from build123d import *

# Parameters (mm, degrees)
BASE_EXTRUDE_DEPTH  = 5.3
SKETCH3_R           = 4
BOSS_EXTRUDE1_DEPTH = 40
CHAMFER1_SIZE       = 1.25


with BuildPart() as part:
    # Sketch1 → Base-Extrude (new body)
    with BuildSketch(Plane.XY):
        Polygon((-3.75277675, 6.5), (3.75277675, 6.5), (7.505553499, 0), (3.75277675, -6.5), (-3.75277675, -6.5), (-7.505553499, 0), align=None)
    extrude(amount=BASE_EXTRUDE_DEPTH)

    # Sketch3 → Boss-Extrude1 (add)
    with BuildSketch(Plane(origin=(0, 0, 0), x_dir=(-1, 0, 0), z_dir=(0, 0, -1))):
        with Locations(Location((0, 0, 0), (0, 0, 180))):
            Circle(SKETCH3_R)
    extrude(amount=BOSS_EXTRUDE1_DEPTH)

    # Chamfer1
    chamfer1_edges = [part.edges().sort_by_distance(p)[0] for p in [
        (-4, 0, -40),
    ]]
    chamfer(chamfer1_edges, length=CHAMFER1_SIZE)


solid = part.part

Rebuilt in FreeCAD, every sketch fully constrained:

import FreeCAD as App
import Part
import Sketcher

V = App.Vector
Q = App.Units.Quantity


def edges_at(feature, points):
    """Names of the edges that pass closest to the given points."""
    edges = feature.Shape.Edges
    near = lambda p: min(range(len(edges)), key=lambda i: edges[i].distToShape(Part.Vertex(*p))[0])
    return sorted({f"Edge{near(p) + 1}" for p in points})


def add_polygon(sketch, points):
    """Adds a closed chain of lines whose ends are joined by coincident constraints."""
    first, n = sketch.GeometryCount, len(points)
    for a, b in zip(points, points[1:] + points[:1]):
        sketch.addGeometry(Part.LineSegment(App.Vector(*a, 0), App.Vector(*b, 0)), False)
    for i in range(n):
        sketch.addConstraint(Sketcher.Constraint("Coincident", first + i, 2, first + (i + 1) % n, 1))

doc = App.newDocument("Part")
body = doc.addObject("PartDesign::Body", "Body")

# Sketch on XY plane
sketch1 = doc.addObject("Sketcher::SketchObject", "Sketch")
body.addObject(sketch1)
sketch1.AttachmentSupport = (doc.XY_Plane, [""])
sketch1.MapMode = "FlatFace"
add_polygon(sketch1, [(3.752777, 6.5), (-3.752777, 6.5), (-7.505553, 0), (-3.752777, -6.5), (3.752777, -6.5), (7.505553, 0)])  # lines 0-5
sketch1.addConstraint([
    Sketcher.Constraint("Horizontal", 0),
    Sketcher.Constraint("Horizontal", 3),
    Sketcher.Constraint("Symmetric", 0, 2, 3, 2, -1, 1),
    Sketcher.Constraint("Symmetric", 1, 2, 4, 2, -1, 1),
    Sketcher.Constraint("PointOnObject", 1, 2, -1),
    Sketcher.Constraint("Parallel", 2, 5),
    Sketcher.Constraint("Vertical", 0, 2, 2, 2),
    Sketcher.Constraint("Angle", 1, Q("-120 deg")),
    Sketcher.Constraint("DistanceY", 2, 2, 0, 2, 13.0),
    Sketcher.Constraint("DistanceX", 0, 2, 0, 1, 7.505554),
])
pad1 = doc.addObject("PartDesign::Pad", "Pad")
body.addObject(pad1)
pad1.Profile = sketch1
pad1.Length = 5.3

# Sketch on XY plane
sketch2 = doc.addObject("Sketcher::SketchObject", "Sketch001")
body.addObject(sketch2)
sketch2.AttachmentSupport = (doc.XY_Plane, [""])
sketch2.MapMode = "FlatFace"
sketch2.addGeometry(Part.Circle(V(0, 0, 0), V(0, 0, 1), 4), False)
sketch2.addConstraint([
    Sketcher.Constraint("Coincident", 0, 3, -1, 1),
    Sketcher.Constraint("Diameter", 0, 8.0),
])
pad2 = doc.addObject("PartDesign::Pad", "Pad001")
body.addObject(pad2)
pad2.Profile = sketch2
pad2.Length = 40
pad2.Reversed = True
doc.recompute()

chamfer = doc.addObject("PartDesign::Chamfer", "Chamfer")
body.addObject(chamfer)
chamfer.Base = (pad2, edges_at(pad2, [(-4, 0, -40)]))
chamfer.Size = 1.25

doc.recompute()
